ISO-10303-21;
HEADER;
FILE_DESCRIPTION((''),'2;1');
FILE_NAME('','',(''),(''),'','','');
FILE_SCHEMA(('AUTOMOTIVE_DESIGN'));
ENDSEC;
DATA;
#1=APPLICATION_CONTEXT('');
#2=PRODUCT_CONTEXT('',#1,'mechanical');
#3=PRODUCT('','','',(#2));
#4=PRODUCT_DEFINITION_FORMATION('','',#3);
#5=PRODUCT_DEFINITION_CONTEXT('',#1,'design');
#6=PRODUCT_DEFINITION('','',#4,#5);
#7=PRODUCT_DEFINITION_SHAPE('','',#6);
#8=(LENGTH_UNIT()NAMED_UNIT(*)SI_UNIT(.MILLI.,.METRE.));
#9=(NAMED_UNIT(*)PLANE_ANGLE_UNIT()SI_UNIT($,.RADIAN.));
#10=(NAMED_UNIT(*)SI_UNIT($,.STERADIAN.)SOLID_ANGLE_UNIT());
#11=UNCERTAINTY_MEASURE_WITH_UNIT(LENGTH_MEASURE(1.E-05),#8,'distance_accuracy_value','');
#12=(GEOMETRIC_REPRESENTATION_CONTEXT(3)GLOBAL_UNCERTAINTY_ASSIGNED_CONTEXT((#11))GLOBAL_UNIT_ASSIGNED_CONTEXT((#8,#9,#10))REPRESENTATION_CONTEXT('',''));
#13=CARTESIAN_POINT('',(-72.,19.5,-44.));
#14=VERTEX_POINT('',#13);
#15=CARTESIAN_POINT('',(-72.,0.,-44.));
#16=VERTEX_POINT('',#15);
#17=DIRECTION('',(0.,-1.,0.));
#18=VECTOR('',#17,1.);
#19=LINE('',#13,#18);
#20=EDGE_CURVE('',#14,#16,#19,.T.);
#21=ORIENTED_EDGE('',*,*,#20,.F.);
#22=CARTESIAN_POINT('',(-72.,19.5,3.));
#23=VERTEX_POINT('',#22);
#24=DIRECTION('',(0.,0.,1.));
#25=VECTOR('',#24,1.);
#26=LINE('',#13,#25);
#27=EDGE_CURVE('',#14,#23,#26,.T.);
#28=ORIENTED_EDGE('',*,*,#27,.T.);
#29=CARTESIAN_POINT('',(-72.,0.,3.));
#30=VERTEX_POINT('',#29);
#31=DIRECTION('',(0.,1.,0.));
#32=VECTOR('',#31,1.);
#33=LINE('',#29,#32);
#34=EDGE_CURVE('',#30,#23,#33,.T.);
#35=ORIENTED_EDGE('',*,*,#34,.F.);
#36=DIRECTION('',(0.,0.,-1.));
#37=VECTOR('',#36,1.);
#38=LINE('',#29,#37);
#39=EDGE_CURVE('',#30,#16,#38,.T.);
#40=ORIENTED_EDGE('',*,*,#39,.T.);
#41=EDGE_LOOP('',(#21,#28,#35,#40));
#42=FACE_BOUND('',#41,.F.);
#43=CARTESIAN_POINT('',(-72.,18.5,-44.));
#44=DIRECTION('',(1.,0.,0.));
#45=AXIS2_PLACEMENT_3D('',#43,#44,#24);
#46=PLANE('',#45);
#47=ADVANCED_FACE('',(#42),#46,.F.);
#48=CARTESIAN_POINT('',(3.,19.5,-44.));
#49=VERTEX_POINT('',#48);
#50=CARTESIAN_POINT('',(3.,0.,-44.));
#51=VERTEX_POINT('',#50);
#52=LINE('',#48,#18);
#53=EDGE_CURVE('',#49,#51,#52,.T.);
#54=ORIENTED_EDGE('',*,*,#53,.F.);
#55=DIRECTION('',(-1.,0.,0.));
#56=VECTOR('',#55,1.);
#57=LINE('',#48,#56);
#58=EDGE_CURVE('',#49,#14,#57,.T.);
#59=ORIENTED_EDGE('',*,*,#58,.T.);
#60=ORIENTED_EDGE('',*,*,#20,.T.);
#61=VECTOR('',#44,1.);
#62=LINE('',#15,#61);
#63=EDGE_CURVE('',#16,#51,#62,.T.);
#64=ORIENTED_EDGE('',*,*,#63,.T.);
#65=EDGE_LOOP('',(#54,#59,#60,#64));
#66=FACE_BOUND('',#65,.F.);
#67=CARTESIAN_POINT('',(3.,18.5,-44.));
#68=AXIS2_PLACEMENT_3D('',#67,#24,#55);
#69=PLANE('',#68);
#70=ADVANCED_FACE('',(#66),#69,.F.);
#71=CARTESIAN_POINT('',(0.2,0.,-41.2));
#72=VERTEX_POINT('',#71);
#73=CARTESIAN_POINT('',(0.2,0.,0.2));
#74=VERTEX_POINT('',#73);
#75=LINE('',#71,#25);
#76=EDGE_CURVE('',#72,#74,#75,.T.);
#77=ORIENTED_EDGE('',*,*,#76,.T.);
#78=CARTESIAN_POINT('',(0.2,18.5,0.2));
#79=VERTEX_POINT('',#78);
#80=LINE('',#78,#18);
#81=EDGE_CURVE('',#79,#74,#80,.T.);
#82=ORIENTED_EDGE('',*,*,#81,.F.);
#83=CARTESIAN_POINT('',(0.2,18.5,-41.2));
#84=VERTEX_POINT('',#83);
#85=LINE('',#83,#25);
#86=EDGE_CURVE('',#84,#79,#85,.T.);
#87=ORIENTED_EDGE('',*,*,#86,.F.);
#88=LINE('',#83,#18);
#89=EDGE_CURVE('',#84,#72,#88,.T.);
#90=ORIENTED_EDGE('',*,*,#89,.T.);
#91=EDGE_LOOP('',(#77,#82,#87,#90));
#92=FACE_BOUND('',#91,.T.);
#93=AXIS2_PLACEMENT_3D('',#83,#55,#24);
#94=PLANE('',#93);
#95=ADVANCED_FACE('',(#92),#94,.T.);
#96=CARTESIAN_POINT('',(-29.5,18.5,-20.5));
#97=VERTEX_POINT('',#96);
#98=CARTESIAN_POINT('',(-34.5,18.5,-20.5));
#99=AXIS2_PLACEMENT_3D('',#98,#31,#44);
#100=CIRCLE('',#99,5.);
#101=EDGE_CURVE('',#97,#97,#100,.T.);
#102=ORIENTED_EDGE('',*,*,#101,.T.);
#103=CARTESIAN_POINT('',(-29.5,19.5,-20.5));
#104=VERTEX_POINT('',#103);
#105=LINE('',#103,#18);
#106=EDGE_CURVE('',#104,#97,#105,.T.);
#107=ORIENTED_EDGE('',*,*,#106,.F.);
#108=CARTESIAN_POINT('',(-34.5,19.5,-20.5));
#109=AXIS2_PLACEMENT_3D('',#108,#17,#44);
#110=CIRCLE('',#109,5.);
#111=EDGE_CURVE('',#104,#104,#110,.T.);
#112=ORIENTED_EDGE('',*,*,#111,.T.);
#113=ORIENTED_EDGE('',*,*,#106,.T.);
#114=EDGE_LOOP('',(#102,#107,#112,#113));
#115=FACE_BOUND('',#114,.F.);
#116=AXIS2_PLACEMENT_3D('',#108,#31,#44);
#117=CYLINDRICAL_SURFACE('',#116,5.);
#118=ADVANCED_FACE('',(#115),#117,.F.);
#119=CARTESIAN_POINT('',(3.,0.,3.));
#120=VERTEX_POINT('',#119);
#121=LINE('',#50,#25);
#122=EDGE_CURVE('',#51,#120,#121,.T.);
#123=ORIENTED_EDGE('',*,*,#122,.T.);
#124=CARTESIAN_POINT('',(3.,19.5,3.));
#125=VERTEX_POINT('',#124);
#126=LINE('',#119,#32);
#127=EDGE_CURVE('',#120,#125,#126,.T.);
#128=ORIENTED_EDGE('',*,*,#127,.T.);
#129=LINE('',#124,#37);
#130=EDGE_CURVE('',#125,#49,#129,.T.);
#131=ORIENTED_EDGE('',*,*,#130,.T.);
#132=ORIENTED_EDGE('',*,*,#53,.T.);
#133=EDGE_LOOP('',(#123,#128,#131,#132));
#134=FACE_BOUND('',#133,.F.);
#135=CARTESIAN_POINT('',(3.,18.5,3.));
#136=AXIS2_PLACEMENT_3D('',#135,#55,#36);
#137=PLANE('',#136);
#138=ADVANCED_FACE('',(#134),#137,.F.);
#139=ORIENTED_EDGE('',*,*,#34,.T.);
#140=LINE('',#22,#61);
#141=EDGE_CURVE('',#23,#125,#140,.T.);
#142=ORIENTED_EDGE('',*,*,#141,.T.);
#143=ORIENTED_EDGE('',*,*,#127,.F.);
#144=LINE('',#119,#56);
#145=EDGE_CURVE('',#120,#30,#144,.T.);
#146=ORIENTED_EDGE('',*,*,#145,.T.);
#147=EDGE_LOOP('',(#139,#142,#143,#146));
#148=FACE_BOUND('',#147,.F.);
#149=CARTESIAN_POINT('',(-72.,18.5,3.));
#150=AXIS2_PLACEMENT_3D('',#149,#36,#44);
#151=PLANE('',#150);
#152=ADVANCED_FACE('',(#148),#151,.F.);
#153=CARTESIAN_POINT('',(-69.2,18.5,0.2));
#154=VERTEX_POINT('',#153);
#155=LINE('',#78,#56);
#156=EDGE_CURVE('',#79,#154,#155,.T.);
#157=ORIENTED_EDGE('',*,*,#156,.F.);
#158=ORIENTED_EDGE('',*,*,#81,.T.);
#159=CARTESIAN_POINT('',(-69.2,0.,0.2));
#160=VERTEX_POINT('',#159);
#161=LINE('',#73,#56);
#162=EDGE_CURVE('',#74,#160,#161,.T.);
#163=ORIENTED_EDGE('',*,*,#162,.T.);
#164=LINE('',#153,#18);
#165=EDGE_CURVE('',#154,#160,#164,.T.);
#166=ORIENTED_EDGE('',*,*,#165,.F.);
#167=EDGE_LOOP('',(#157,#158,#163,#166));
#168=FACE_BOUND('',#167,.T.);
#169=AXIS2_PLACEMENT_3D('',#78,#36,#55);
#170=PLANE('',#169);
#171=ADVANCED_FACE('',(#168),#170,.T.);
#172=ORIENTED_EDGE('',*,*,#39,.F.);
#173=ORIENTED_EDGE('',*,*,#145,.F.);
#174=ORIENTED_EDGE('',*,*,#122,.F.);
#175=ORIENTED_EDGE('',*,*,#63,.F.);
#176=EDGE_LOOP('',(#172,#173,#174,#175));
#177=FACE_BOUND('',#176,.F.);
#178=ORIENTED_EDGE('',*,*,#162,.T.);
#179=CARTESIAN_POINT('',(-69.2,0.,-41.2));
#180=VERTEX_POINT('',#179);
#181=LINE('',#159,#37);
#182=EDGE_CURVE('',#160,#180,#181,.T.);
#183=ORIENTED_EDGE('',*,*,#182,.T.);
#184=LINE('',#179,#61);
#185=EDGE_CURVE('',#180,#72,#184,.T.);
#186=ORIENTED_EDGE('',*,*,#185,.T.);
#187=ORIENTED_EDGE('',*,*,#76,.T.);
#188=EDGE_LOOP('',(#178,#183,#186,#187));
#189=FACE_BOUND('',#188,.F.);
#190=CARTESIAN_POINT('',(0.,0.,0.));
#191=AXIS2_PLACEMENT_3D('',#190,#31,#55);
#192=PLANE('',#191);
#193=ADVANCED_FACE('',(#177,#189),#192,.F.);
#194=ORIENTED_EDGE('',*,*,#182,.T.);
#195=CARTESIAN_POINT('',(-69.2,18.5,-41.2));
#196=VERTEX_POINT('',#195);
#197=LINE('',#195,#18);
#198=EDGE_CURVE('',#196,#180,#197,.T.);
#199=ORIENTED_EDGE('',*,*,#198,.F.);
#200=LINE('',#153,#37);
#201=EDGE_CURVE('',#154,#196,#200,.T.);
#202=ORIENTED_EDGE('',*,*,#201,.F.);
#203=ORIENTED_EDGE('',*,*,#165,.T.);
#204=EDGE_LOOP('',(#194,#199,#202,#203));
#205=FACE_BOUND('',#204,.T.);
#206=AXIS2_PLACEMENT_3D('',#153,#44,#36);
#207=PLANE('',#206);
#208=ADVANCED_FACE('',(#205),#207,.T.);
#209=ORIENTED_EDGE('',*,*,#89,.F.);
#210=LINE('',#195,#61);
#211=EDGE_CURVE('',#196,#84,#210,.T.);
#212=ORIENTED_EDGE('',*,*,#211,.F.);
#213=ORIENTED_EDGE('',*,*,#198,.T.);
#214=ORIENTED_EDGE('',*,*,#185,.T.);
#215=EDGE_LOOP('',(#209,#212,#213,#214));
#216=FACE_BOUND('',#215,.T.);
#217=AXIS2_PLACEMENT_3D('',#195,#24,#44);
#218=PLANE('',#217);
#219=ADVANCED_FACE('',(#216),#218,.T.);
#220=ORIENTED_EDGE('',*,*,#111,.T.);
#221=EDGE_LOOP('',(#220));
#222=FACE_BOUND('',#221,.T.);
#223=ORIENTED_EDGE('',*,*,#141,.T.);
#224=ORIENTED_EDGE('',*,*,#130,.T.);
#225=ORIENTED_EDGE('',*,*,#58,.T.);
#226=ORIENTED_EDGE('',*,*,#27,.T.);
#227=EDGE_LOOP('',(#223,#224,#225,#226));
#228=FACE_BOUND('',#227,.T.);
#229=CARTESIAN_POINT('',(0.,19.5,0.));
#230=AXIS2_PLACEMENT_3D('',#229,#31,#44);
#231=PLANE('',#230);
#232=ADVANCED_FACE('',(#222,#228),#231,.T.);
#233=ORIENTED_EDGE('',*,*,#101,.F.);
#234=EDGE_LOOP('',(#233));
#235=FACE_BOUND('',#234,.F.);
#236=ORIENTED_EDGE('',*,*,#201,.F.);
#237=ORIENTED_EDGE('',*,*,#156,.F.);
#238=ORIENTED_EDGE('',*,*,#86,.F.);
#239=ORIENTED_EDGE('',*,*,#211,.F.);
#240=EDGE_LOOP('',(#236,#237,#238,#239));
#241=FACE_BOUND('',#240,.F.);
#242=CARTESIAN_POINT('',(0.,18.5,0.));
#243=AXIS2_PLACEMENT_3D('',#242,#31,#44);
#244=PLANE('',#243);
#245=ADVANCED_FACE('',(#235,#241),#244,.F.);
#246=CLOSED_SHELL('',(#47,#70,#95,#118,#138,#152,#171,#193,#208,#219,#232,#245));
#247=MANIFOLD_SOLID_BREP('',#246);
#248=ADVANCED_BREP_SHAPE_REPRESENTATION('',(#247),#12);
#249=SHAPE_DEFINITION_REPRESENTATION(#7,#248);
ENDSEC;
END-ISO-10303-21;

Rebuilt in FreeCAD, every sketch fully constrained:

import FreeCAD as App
import Part
import Sketcher
Q = App.Units.Quantity

doc = App.newDocument("Part")
params = doc.addObject("Spreadsheet::Sheet", "Params")
for row, (alias, value) in enumerate([
    ("sketch1_width", "69 mm"),
    ("sketch1_height", "41 mm"),
    ("pad1_length", "18.5 mm"),
    ("sketch2_width", "69 mm"),
    ("sketch2_height", "41 mm"),
    ("pocket1_length", "18.5 mm"),
    ("sketch3_width", "75 mm"),
    ("sketch3_height", "47 mm"),
    ("pad2_length", "1 mm"),
    ("sketch4_diameter", "10 mm"),
    ("pocket2_length", "1 mm"),
], start=1):
    params.set(f"A{row}", alias)
    params.set(f"B{row}", "=" + value)
    params.setAlias(f"B{row}", alias)

body = doc.addObject("PartDesign::Body", "Body")

# Sketch on XZ plane
sketch1 = body.newObject("Sketcher::SketchObject", "Sketch")
sketch1.AttachmentSupport = (doc.getObject("XZ_Plane"), [""])
sketch1.MapMode = "FlatFace"
sketch1.addGeometry([
    Part.LineSegment(App.Vector(-72, 3, 0), App.Vector(3, 3, 0)),  # 0
    Part.LineSegment(App.Vector(3, 3, 0), App.Vector(3, -44, 0)),  # 1
    Part.LineSegment(App.Vector(3, -44, 0), App.Vector(-72, -44, 0)),  # 2
    Part.LineSegment(App.Vector(-72, -44, 0), App.Vector(-72, 3, 0)),  # 3
    Part.LineSegment(App.Vector(0, -41, 0), App.Vector(0, 0, 0)),  # 4
    Part.LineSegment(App.Vector(0, 0, 0), App.Vector(-69, 0, 0)),  # 5
    Part.LineSegment(App.Vector(-69, 0, 0), App.Vector(-69, -41, 0)),  # 6
    Part.LineSegment(App.Vector(-69, -41, 0), App.Vector(0, -41, 0)),  # 7
], False)
sketch1.addConstraint([
    Sketcher.Constraint("Coincident", 0, 2, 1, 1),
    Sketcher.Constraint("Coincident", 1, 2, 2, 1),
    Sketcher.Constraint("Coincident", 2, 2, 3, 1),
    Sketcher.Constraint("Coincident", 3, 2, 0, 1),
    Sketcher.Constraint("Coincident", 4, 2, 5, 1),
    Sketcher.Constraint("Coincident", 5, 2, 6, 1),
    Sketcher.Constraint("Coincident", 6, 2, 7, 1),
    Sketcher.Constraint("Coincident", 7, 2, 4, 1),
    Sketcher.Constraint("Horizontal", 0),
    Sketcher.Constraint("Vertical", 1),
    Sketcher.Constraint("Horizontal", 2),
    Sketcher.Constraint("Vertical", 3),
    Sketcher.Constraint("Vertical", 4),
    Sketcher.Constraint("Horizontal", 5),
    Sketcher.Constraint("Vertical", 6),
    Sketcher.Constraint("Horizontal", 7),
    Sketcher.Constraint("Coincident", 4, 2, -1, 1),
    Sketcher.Constraint("DistanceX", 5, 2, 5, 1, Q("69 mm")),
    Sketcher.Constraint("DistanceY", 4, 1, 4, 2, Q("41 mm")),
    Sketcher.Constraint("DistanceX", -1, 1, 0, 2, Q("3 mm")),
    Sketcher.Constraint("DistanceY", -1, 1, 0, 2, Q("3 mm")),
    Sketcher.Constraint("DistanceX", 3, 2, 5, 2, Q("3 mm")),
    Sketcher.Constraint("DistanceY", 2, 2, 6, 2, Q("3 mm")),
])
sketch1.setExpression("Constraints[17]", "Params.sketch1_width")
sketch1.setExpression("Constraints[18]", "Params.sketch1_height")
pad1 = body.newObject("PartDesign::Pad", "Pad")
pad1.Profile = sketch1
pad1.setExpression("Length", "Params.pad1_length")
pad1.Reversed = True

# Sketch on XZ plane
sketch2 = body.newObject("Sketcher::SketchObject", "Sketch001")
sketch2.AttachmentSupport = (doc.getObject("XZ_Plane"), [""])
sketch2.MapMode = "FlatFace"
sketch2.AttachmentOffset = App.Placement(App.Vector(0, 0, -18.5), App.Rotation())
sketch2.addGeometry([
    Part.LineSegment(App.Vector(0, 0, 0), App.Vector(0, -41, 0)),  # 0
    Part.LineSegment(App.Vector(0, -41, 0), App.Vector(-69, -41, 0)),  # 1
    Part.LineSegment(App.Vector(-69, -41, 0), App.Vector(-69, 0, 0)),  # 2
    Part.LineSegment(App.Vector(-69, 0, 0), App.Vector(0, 0, 0)),  # 3
    Part.LineSegment(App.Vector(0, -41, 0), App.Vector(0, 0, 0)),  # 4
    Part.LineSegment(App.Vector(0, 0, 0), App.Vector(-69, 0, 0)),  # 5
    Part.LineSegment(App.Vector(-69, 0, 0), App.Vector(-69, -41, 0)),  # 6
    Part.LineSegment(App.Vector(-69, -41, 0), App.Vector(0, -41, 0)),  # 7
], False)
sketch2.addConstraint([
    Sketcher.Constraint("Coincident", 0, 2, 1, 1),
    Sketcher.Constraint("Coincident", 1, 2, 2, 1),
    Sketcher.Constraint("Coincident", 2, 2, 3, 1),
    Sketcher.Constraint("Coincident", 3, 2, 0, 1),
    Sketcher.Constraint("Coincident", 4, 2, 5, 1),
    Sketcher.Constraint("Coincident", 5, 2, 6, 1),
    Sketcher.Constraint("Coincident", 6, 2, 7, 1),
    Sketcher.Constraint("Coincident", 7, 2, 4, 1),
    Sketcher.Constraint("Vertical", 0),
    Sketcher.Constraint("Horizontal", 1),
    Sketcher.Constraint("Vertical", 2),
    Sketcher.Constraint("Horizontal", 3),
    Sketcher.Constraint("Vertical", 4),
    Sketcher.Constraint("Horizontal", 5),
    Sketcher.Constraint("Vertical", 6),
    Sketcher.Constraint("Horizontal", 7),
    Sketcher.Constraint("Coincident", 4, 2, -1, 1),
    Sketcher.Constraint("DistanceX", -1, 1, 0, 2, Q("0.2 mm")),
    Sketcher.Constraint("DistanceY", -1, 1, 2, 2, Q("0.2 mm")),
    Sketcher.Constraint("DistanceX", 2, 2, 5, 2, Q("0.2 mm")),
    Sketcher.Constraint("DistanceY", 1, 2, 6, 2, Q("0.2 mm")),
    Sketcher.Constraint("DistanceX", 5, 2, 5, 1, Q("69 mm")),
    Sketcher.Constraint("DistanceY", 4, 1, 4, 2, Q("41 mm")),
])
sketch2.setExpression("Constraints[21]", "Params.sketch2_width")
sketch2.setExpression("Constraints[22]", "Params.sketch2_height")
pocket1 = body.newObject("PartDesign::Pocket", "Pocket")
pocket1.Profile = sketch2
pocket1.setExpression("Length", "Params.pocket1_length")
pocket1.Reversed = True

# Sketch on XZ plane
sketch3 = body.newObject("Sketcher::SketchObject", "Sketch002")
sketch3.AttachmentSupport = (doc.getObject("XZ_Plane"), [""])
sketch3.MapMode = "FlatFace"
sketch3.AttachmentOffset = App.Placement(App.Vector(0, 0, -18.5), App.Rotation())
sketch3.addGeometry([
    Part.LineSegment(App.Vector(-72, -44, 0), App.Vector(-72, 3, 0)),
    Part.LineSegment(App.Vector(-72, 3, 0), App.Vector(3, 3, 0)),
    Part.LineSegment(App.Vector(3, 3, 0), App.Vector(3, -44, 0)),
    Part.LineSegment(App.Vector(3, -44, 0), App.Vector(-72, -44, 0)),
], False)
sketch3.addConstraint([
    Sketcher.Constraint("Coincident", 0, 2, 1, 1),
    Sketcher.Constraint("Coincident", 1, 2, 2, 1),
    Sketcher.Constraint("Coincident", 2, 2, 3, 1),
    Sketcher.Constraint("Coincident", 3, 2, 0, 1),
    Sketcher.Constraint("Vertical", 0),
    Sketcher.Constraint("Horizontal", 1),
    Sketcher.Constraint("Vertical", 2),
    Sketcher.Constraint("Horizontal", 3),
    Sketcher.Constraint("DistanceX", 1, 1, 1, 2, Q("75 mm")),
    Sketcher.Constraint("DistanceY", 0, 1, 0, 2, Q("47 mm")),
    Sketcher.Constraint("DistanceX", 0, 2, -1, 1, Q("72 mm")),
    Sketcher.Constraint("DistanceY", -1, 1, 0, 2, Q("3 mm")),
])
sketch3.setExpression("Constraints[8]", "Params.sketch3_width")
sketch3.setExpression("Constraints[9]", "Params.sketch3_height")
pad2 = body.newObject("PartDesign::Pad", "Pad001")
pad2.Profile = sketch3
pad2.setExpression("Length", "Params.pad2_length")
pad2.Reversed = True

# Sketch on XZ plane
sketch4 = body.newObject("Sketcher::SketchObject", "Sketch003")
sketch4.AttachmentSupport = (doc.getObject("XZ_Plane"), [""])
sketch4.MapMode = "FlatFace"
sketch4.AttachmentOffset = App.Placement(App.Vector(0, 0, -19.5), App.Rotation())
sketch4.addGeometry(Part.Circle(App.Vector(-34, -20, 0), App.Vector(0, 0, 1), 5), False)
sketch4.addConstraint([
    Sketcher.Constraint("Diameter", 0, Q("10 mm")),
    Sketcher.Constraint("DistanceX", 0, 3, -1, 1, Q("34.5 mm")),
    Sketcher.Constraint("DistanceY", 0, 3, -1, 1, Q("20.5 mm")),
])
sketch4.setExpression("Constraints[0]", "Params.sketch4_diameter")
pocket2 = body.newObject("PartDesign::Pocket", "Pocket001")
pocket2.Profile = sketch4
pocket2.setExpression("Length", "Params.pocket2_length")
pocket2.Reversed = True

doc.recompute()
